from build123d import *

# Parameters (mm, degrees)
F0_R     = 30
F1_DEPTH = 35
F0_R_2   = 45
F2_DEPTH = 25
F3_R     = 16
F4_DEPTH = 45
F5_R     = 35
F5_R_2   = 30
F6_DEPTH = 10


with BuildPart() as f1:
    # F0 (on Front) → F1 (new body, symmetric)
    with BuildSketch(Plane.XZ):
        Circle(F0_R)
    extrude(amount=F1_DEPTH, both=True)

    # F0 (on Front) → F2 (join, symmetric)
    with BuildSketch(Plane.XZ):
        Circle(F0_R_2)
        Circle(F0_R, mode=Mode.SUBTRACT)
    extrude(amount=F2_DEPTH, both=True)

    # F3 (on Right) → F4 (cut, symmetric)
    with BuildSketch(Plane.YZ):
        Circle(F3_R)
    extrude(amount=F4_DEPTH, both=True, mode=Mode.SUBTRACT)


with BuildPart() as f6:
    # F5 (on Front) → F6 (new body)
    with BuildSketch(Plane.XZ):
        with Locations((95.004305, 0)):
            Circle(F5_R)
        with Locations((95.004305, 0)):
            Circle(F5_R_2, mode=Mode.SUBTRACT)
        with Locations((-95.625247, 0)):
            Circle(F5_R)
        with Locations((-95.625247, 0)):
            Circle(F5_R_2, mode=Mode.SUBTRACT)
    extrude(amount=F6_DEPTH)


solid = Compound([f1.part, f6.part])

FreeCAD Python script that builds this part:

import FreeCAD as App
import Part
import Sketcher
from FreeCAD import Vector
Q = App.Units.Quantity

doc = App.newDocument("Part")
params = doc.addObject("Spreadsheet::Sheet", "Params")
for row, (alias, value) in enumerate([
    ("sketch1_diameter", "60 mm"),
    ("pad1_length", "70 mm"),
    ("sketch2_diameter", "90 mm"),
    ("sketch2_diameter2", "60 mm"),
    ("pad2_length", "50 mm"),
    ("sketch3_diameter", "32 mm"),
    ("pocket1_length", "90 mm"),
    ("sketch4_diameter", "70 mm"),
    ("sketch4_diameter2", "60 mm"),
    ("pad3_length", "10 mm"),
], start=1):
    params.set(f"A{row}", alias)
    params.set(f"B{row}", "=" + value)
    params.setAlias(f"B{row}", alias)

body = doc.addObject("PartDesign::Body", "Body")

# Sketch on XZ plane
sketch1 = doc.addObject("Sketcher::SketchObject", "Sketch")
body.addObject(sketch1)
sketch1.AttachmentSupport = (doc.XZ_Plane, [""])
sketch1.MapMode = "FlatFace"
sketch1.addGeometry(Part.Circle(Vector(0, 0, 0), Vector(0, 0, 1), 30), False)
sketch1.addConstraint(Sketcher.Constraint("Coincident", 0, 3, -1, 1))
sketch1.addConstraint(Sketcher.Constraint("Diameter", 0, Q("60 mm")))
sketch1.setExpression("Constraints[1]", "Params.sketch1_diameter")
pad1 = doc.addObject("PartDesign::Pad", "Pad")
body.addObject(pad1)
pad1.Profile = sketch1
pad1.setExpression("Length", "Params.pad1_length")
pad1.Midplane = True

# Sketch on XZ plane
sketch2 = doc.addObject("Sketcher::SketchObject", "Sketch001")
body.addObject(sketch2)
sketch2.AttachmentSupport = (doc.XZ_Plane, [""])
sketch2.MapMode = "FlatFace"
sketch2.addGeometry(Part.Circle(Vector(0, 0, 0), Vector(0, 0, 1), 45), False)
sketch2.addGeometry(Part.Circle(Vector(0, 0, 0), Vector(0, 0, 1), 30), False)
sketch2.addConstraint(Sketcher.Constraint("Coincident", 0, 3, -1, 1))
sketch2.addConstraint(Sketcher.Constraint("Coincident", 1, 3, -1, 1))
sketch2.addConstraint(Sketcher.Constraint("Diameter", 0, Q("90 mm")))
sketch2.addConstraint(Sketcher.Constraint("Diameter", 1, Q("60 mm")))
sketch2.setExpression("Constraints[2]", "Params.sketch2_diameter")
sketch2.setExpression("Constraints[3]", "Params.sketch2_diameter2")
pad2 = doc.addObject("PartDesign::Pad", "Pad001")
body.addObject(pad2)
pad2.Profile = sketch2
pad2.setExpression("Length", "Params.pad2_length")
pad2.Midplane = True

# Sketch on YZ plane
sketch3 = doc.addObject("Sketcher::SketchObject", "Sketch002")
body.addObject(sketch3)
sketch3.AttachmentSupport = (doc.YZ_Plane, [""])
sketch3.MapMode = "FlatFace"
sketch3.addGeometry(Part.Circle(Vector(0, 0, 0), Vector(0, 0, 1), 16), False)
sketch3.addConstraint(Sketcher.Constraint("Coincident", 0, 3, -1, 1))
sketch3.addConstraint(Sketcher.Constraint("Diameter", 0, Q("32 mm")))
sketch3.setExpression("Constraints[1]", "Params.sketch3_diameter")
pocket1 = doc.addObject("PartDesign::Pocket", "Pocket")
body.addObject(pocket1)
pocket1.Profile = sketch3
pocket1.setExpression("Length", "Params.pocket1_length")
pocket1.Midplane = True
body2 = doc.addObject("PartDesign::Body", "Body001")
body2.AllowCompound = True

# Sketch on XZ plane
sketch4 = doc.addObject("Sketcher::SketchObject", "Sketch003")
body2.addObject(sketch4)
sketch4.AttachmentSupport = (doc.getObject("XZ_Plane001"), [""])
sketch4.MapMode = "FlatFace"
sketch4.addGeometry(Part.Circle(Vector(95.004305, 0, 0), Vector(0, 0, 1), 35), False)
sketch4.addGeometry(Part.Circle(Vector(95.004305, 0, 0), Vector(0, 0, 1), 30), False)
sketch4.addGeometry(Part.Circle(Vector(-95.625247, 0, 0), Vector(0, 0, 1), 35), False)
sketch4.addGeometry(Part.Circle(Vector(-95.625247, 0, 0), Vector(0, 0, 1), 30), False)
sketch4.addConstraint(Sketcher.Constraint("Coincident", 1, 3, 0, 3))
sketch4.addConstraint(Sketcher.Constraint("Coincident", 3, 3, 2, 3))
sketch4.addConstraint(Sketcher.Constraint("Equal", 0, 2))
sketch4.addConstraint(Sketcher.Constraint("Equal", 1, 3))
sketch4.addConstraint(Sketcher.Constraint("PointOnObject", 0, 3, -1))
sketch4.addConstraint(Sketcher.Constraint("PointOnObject", 2, 3, -1))
sketch4.addConstraint(Sketcher.Constraint("Diameter", 0, Q("70 mm")))
sketch4.addConstraint(Sketcher.Constraint("Diameter", 1, Q("60 mm")))
sketch4.addConstraint(Sketcher.Constraint("DistanceX", 2, 3, 0, 3, Q("190.629552 mm")))
sketch4.addConstraint(Sketcher.Constraint("DistanceX", -1, 1, 0, 3, Q("95.004305 mm")))
sketch4.setExpression("Constraints[6]", "Params.sketch4_diameter")
sketch4.setExpression("Constraints[7]", "Params.sketch4_diameter2")
pad3 = doc.addObject("PartDesign::Pad", "Pad002")
body2.addObject(pad3)
pad3.Profile = sketch4
pad3.setExpression("Length", "Params.pad3_length")

doc.recompute()
